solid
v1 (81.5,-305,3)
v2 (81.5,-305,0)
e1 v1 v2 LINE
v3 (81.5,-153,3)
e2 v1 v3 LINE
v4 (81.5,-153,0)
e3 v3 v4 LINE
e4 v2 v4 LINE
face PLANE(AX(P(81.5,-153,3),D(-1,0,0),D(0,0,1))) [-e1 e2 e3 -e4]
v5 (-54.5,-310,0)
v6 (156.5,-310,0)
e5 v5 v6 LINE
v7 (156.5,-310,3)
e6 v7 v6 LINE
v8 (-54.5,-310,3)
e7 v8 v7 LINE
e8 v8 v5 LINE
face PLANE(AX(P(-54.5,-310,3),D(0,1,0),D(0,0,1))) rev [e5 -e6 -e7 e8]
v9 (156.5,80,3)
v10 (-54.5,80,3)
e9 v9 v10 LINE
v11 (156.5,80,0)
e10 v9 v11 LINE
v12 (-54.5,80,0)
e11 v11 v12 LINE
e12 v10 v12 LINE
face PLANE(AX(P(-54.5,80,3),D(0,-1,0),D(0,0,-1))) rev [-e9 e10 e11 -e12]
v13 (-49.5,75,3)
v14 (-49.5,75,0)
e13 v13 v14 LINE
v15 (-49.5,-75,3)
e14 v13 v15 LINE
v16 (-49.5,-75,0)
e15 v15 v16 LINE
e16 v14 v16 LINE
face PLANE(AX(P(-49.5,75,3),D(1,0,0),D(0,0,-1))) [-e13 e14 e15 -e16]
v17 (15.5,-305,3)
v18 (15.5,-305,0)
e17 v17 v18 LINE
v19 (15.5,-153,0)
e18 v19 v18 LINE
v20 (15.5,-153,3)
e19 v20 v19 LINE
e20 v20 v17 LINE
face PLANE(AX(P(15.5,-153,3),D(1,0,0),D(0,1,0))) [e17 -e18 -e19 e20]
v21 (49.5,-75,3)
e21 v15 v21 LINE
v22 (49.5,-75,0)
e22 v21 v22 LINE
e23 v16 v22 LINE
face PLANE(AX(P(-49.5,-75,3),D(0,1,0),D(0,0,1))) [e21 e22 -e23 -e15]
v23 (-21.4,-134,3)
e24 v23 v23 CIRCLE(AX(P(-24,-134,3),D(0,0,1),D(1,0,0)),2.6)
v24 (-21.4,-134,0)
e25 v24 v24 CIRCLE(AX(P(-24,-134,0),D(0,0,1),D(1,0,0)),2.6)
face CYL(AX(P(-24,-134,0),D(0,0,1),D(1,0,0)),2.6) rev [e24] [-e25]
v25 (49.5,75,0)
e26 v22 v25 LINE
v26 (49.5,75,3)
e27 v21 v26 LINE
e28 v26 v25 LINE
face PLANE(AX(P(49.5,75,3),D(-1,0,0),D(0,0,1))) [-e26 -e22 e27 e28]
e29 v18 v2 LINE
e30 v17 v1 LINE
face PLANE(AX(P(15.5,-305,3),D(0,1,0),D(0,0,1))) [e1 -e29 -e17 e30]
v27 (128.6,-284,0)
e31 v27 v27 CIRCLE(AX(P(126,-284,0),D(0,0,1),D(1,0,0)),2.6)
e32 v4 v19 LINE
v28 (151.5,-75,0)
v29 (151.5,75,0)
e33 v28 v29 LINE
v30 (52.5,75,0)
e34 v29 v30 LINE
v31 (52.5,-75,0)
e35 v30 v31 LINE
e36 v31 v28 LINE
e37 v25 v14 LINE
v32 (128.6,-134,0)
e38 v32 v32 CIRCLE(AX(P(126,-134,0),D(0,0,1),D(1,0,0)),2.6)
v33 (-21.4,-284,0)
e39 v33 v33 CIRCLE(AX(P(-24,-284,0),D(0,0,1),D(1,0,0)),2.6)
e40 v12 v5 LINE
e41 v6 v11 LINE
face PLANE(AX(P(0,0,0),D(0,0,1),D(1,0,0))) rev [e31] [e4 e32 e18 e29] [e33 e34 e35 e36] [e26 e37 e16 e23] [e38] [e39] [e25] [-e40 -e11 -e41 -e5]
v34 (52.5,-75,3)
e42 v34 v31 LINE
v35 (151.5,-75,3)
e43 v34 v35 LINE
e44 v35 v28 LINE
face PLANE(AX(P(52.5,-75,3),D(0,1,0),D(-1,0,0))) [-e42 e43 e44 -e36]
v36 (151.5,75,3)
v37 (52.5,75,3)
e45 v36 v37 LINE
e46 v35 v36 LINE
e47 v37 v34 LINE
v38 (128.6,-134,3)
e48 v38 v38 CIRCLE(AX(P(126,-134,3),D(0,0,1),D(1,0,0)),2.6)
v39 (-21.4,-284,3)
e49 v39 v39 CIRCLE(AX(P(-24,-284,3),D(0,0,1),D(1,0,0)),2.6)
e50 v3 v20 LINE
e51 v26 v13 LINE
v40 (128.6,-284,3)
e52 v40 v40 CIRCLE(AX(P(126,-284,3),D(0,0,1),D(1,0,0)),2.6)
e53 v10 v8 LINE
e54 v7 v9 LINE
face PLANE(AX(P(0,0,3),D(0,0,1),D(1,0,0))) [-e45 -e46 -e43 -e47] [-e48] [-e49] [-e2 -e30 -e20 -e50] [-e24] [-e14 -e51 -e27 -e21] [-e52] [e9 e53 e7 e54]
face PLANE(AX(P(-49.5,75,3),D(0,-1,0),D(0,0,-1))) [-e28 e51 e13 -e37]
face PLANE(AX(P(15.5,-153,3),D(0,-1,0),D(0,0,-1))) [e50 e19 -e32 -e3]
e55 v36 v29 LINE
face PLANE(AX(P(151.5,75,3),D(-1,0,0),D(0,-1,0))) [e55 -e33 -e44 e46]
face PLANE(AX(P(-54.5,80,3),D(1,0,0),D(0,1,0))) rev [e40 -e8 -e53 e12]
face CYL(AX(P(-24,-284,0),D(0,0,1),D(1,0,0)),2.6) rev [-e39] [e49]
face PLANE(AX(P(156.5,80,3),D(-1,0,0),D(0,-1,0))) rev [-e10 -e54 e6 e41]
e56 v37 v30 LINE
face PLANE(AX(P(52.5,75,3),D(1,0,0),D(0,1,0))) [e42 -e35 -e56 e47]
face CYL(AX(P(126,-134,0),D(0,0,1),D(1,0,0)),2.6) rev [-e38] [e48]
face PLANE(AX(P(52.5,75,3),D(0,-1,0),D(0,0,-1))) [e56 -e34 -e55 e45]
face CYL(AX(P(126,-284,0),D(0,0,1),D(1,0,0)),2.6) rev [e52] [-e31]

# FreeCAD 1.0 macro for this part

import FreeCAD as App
import Part
import Sketcher
Q = App.Units.Quantity

doc = App.newDocument("Part")
params = doc.addObject("Spreadsheet::Sheet", "Params")
for row, (alias, value) in enumerate([
    ("sketch1_width", "211 mm"),
    ("sketch1_width2", "66 mm"),
    ("sketch1_width3", "99 mm"),
    ("sketch1_height", "390 mm"),
    ("sketch1_height2", "152 mm"),
    ("pad1_length", "3 mm"),
    ("sketch2_diameter", "5.2 mm"),
], start=1):
    params.set(f"A{row}", alias)
    params.set(f"B{row}", "=" + value)
    params.setAlias(f"B{row}", alias)

body = doc.addObject("PartDesign::Body", "Body")

# Sketch on XY plane
sketch1 = doc.addObject("Sketcher::SketchObject", "Sketch")
body.addObject(sketch1)
sketch1.AttachmentSupport = (doc.XY_Plane, [""])
sketch1.MapMode = "FlatFace"
sketch1.addGeometry([
    Part.LineSegment(App.Vector(-54, 80, 0), App.Vector(-54, -310, 0)),  # 0
    Part.LineSegment(App.Vector(-54, -310, 0), App.Vector(156, -310, 0)),  # 1
    Part.LineSegment(App.Vector(156, -310, 0), App.Vector(156, 80, 0)),  # 2
    Part.LineSegment(App.Vector(156, 80, 0), App.Vector(-54, 80, 0)),  # 3
    Part.LineSegment(App.Vector(82, -305, 0), App.Vector(16, -305, 0)),  # 4
    Part.LineSegment(App.Vector(16, -305, 0), App.Vector(16, -153, 0)),  # 5
    Part.LineSegment(App.Vector(16, -153, 0), App.Vector(82, -153, 0)),  # 6
    Part.LineSegment(App.Vector(82, -153, 0), App.Vector(82, -305, 0)),  # 7
    Part.LineSegment(App.Vector(50, -75, 0), App.Vector(-50, -75, 0)),  # 8
    Part.LineSegment(App.Vector(-50, -75, 0), App.Vector(-50, 75, 0)),  # 9
    Part.LineSegment(App.Vector(-50, 75, 0), App.Vector(50, 75, 0)),  # 10
    Part.LineSegment(App.Vector(50, 75, 0), App.Vector(50, -75, 0)),  # 11
    Part.LineSegment(App.Vector(152, -75, 0), App.Vector(52, -75, 0)),  # 12
    Part.LineSegment(App.Vector(52, -75, 0), App.Vector(52, 75, 0)),  # 13
    Part.LineSegment(App.Vector(52, 75, 0), App.Vector(152, 75, 0)),  # 14
    Part.LineSegment(App.Vector(152, 75, 0), App.Vector(152, -75, 0)),  # 15
], False)
sketch1.addConstraint([
    Sketcher.Constraint("Coincident", 0, 2, 1, 1),
    Sketcher.Constraint("Coincident", 1, 2, 2, 1),
    Sketcher.Constraint("Coincident", 2, 2, 3, 1),
    Sketcher.Constraint("Coincident", 3, 2, 0, 1),
    Sketcher.Constraint("Coincident", 4, 2, 5, 1),
    Sketcher.Constraint("Coincident", 5, 2, 6, 1),
    Sketcher.Constraint("Coincident", 6, 2, 7, 1),
    Sketcher.Constraint("Coincident", 7, 2, 4, 1),
    Sketcher.Constraint("Coincident", 8, 2, 9, 1),
    Sketcher.Constraint("Coincident", 9, 2, 10, 1),
    Sketcher.Constraint("Coincident", 10, 2, 11, 1),
    Sketcher.Constraint("Coincident", 11, 2, 8, 1),
    Sketcher.Constraint("Coincident", 12, 2, 13, 1),
    Sketcher.Constraint("Coincident", 13, 2, 14, 1),
    Sketcher.Constraint("Coincident", 14, 2, 15, 1),
    Sketcher.Constraint("Coincident", 15, 2, 12, 1),
    Sketcher.Constraint("Vertical", 0),
    Sketcher.Constraint("Horizontal", 1),
    Sketcher.Constraint("Vertical", 2),
    Sketcher.Constraint("Horizontal", 3),
    Sketcher.Constraint("Horizontal", 4),
    Sketcher.Constraint("Vertical", 5),
    Sketcher.Constraint("Horizontal", 6),
    Sketcher.Constraint("Vertical", 7),
    Sketcher.Constraint("Horizontal", 8),
    Sketcher.Constraint("Vertical", 9),
    Sketcher.Constraint("Horizontal", 10),
    Sketcher.Constraint("Vertical", 11),
    Sketcher.Constraint("Horizontal", 12),
    Sketcher.Constraint("Vertical", 13),
    Sketcher.Constraint("Horizontal", 14),
    Sketcher.Constraint("Vertical", 15),
    Sketcher.Constraint("Symmetric", 8, 2, 10, 2, -1, 1),
    Sketcher.Constraint("Horizontal", 11, 2, 12, 2),
    Sketcher.Constraint("Horizontal", 10, 2, 13, 2),
    Sketcher.Constraint("Equal", 10, 12),
    Sketcher.Constraint("DistanceX", 1, 1, 1, 2, Q("211 mm")),
    Sketcher.Constraint("DistanceX", 4, 2, 4, 1, Q("66 mm")),
    Sketcher.Constraint("DistanceX", 8, 2, 8, 1, Q("99 mm")),
    Sketcher.Constraint("DistanceY", 0, 2, 0, 1, Q("390 mm")),
    Sketcher.Constraint("DistanceY", 5, 1, 5, 2, Q("152 mm")),
    Sketcher.Constraint("DistanceY", 9, 1, 9, 2, Q("150 mm")),
    Sketcher.Constraint("DistanceY", 0, 2, -1, 1, Q("310 mm")),
    Sketcher.Constraint("DistanceY", 4, 2, -1, 1, Q("305 mm")),
    Sketcher.Constraint("DistanceX", 0, 2, 4, 2, Q("70 mm")),
    Sketcher.Constraint("DistanceX", 8, 2, 5, 2, Q("65 mm")),
    Sketcher.Constraint("DistanceX", 11, 2, 12, 2, Q("3 mm")),
])
sketch1.setExpression("Constraints[36]", "Params.sketch1_width")
sketch1.setExpression("Constraints[37]", "Params.sketch1_width2")
sketch1.setExpression("Constraints[38]", "Params.sketch1_width3")
sketch1.setExpression("Constraints[39]", "Params.sketch1_height")
sketch1.setExpression("Constraints[40]", "Params.sketch1_height2")
pad1 = doc.addObject("PartDesign::Pad", "Pad")
body.addObject(pad1)
pad1.Profile = sketch1
pad1.setExpression("Length", "Params.pad1_length")

# Sketch on XY plane
sketch2 = doc.addObject("Sketcher::SketchObject", "Sketch001")
body.addObject(sketch2)
sketch2.AttachmentSupport = (doc.XY_Plane, [""])
sketch2.MapMode = "FlatFace"
sketch2.AttachmentOffset = App.Placement(App.Vector(0, 0, 3), App.Rotation())
sketch2.addGeometry([
    Part.Circle(App.Vector(-24, -134, 0), App.Vector(0, 0, 1), 2.6),
    Part.Circle(App.Vector(126, -134, 0), App.Vector(0, 0, 1), 2.6),
    Part.Circle(App.Vector(126, -284, 0), App.Vector(0, 0, 1), 2.6),
    Part.Circle(App.Vector(-24, -284, 0), App.Vector(0, 0, 1), 2.6),
], False)
sketch2.addConstraint([
    Sketcher.Constraint("Equal", 0, 1),
    Sketcher.Constraint("Equal", 1, 2),
    Sketcher.Constraint("Equal", 2, 3),
    Sketcher.Constraint("Horizontal", 0, 3, 1, 3),
    Sketcher.Constraint("Horizontal", 2, 3, 3, 3),
    Sketcher.Constraint("Vertical", 1, 3, 2, 3),
    Sketcher.Constraint("Vertical", 0, 3, 3, 3),
    Sketcher.Constraint("Diameter", 0, Q("5.2 mm")),
    Sketcher.Constraint("DistanceX", 0, 3, -1, 1, Q("24 mm")),
    Sketcher.Constraint("DistanceY", 0, 3, -1, 1, Q("134 mm")),
    Sketcher.Constraint("DistanceX", -1, 1, 1, 3, Q("126 mm")),
    Sketcher.Constraint("DistanceY", 2, 3, -1, 1, Q("284 mm")),
])
sketch2.setExpression("Constraints[7]", "Params.sketch2_diameter")
pocket1 = doc.addObject("PartDesign::Pocket", "Pocket")
body.addObject(pocket1)
pocket1.Profile = sketch2
pocket1.Type = "ThroughAll"

doc.recompute()
